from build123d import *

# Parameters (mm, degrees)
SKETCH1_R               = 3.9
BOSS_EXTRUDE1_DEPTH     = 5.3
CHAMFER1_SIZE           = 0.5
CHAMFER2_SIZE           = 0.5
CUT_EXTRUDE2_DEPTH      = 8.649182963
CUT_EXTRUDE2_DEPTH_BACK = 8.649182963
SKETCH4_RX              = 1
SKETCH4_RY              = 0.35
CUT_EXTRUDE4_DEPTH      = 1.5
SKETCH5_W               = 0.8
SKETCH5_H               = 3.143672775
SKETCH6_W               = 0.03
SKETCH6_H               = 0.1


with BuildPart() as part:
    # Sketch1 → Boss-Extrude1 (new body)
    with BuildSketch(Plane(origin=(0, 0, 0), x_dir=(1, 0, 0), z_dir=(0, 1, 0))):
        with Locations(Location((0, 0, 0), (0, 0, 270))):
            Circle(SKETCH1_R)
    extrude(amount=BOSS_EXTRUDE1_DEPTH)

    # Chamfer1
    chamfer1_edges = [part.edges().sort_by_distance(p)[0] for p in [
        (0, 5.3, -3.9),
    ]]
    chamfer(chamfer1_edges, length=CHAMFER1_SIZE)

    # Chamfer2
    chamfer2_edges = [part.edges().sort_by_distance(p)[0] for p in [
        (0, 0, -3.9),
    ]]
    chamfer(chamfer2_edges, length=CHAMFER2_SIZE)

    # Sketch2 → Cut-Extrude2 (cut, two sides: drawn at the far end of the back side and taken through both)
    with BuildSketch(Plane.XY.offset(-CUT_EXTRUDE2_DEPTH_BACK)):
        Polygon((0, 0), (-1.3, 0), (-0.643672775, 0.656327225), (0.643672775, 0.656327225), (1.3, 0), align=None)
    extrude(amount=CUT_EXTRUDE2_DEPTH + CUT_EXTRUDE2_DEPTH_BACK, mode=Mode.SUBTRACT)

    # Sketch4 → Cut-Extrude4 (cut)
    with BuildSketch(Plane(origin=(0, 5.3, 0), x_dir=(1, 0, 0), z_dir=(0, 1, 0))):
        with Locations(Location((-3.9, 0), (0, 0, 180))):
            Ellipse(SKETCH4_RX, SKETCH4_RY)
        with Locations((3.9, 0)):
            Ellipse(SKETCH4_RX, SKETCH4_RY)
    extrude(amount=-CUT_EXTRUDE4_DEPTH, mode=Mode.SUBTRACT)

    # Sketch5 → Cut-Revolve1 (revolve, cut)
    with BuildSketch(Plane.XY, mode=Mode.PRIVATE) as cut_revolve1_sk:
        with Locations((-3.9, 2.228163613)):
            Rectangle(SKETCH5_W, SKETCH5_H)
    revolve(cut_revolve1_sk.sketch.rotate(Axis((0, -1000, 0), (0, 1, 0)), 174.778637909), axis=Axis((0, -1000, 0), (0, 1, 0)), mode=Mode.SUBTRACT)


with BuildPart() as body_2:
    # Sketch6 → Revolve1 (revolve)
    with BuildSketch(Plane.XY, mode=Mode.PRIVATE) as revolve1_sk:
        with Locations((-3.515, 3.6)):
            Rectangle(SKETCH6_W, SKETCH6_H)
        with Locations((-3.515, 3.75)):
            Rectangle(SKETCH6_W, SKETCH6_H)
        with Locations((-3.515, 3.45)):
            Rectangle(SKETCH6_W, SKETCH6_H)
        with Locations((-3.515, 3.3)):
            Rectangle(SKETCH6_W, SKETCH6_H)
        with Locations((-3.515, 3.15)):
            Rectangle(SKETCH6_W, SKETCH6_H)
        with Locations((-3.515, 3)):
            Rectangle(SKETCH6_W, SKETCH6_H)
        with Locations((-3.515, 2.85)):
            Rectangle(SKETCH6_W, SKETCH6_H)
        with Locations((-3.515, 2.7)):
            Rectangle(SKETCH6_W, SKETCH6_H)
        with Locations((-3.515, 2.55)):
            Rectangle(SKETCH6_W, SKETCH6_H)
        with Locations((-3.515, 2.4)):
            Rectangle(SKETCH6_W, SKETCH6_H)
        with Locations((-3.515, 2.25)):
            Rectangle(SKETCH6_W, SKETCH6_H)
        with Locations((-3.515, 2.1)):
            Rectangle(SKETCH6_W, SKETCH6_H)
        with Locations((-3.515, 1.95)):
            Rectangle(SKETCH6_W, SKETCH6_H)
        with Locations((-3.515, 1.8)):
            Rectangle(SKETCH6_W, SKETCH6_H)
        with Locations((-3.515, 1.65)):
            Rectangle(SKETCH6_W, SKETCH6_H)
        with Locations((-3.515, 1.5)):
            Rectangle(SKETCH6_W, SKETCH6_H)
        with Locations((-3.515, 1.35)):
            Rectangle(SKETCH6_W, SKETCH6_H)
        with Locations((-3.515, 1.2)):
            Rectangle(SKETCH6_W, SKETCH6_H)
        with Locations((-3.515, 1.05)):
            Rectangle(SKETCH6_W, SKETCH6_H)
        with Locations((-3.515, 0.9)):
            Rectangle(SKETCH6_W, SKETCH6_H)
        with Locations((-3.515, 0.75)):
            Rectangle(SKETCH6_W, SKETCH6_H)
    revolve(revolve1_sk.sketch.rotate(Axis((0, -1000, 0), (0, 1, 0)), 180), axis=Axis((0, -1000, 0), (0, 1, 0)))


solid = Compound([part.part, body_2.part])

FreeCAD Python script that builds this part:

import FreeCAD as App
import Part
import Sketcher
from FreeCAD import Vector


def edges_at(feature, points):
    """Names of the edges that pass closest to the given points."""
    edges = feature.Shape.Edges
    near = lambda p: min(range(len(edges)), key=lambda i: edges[i].distToShape(Part.Vertex(*p))[0])
    return sorted({f"Edge{near(p) + 1}" for p in points})


def add_polygon(sketch, points):
    """Adds a closed chain of lines whose ends are joined by coincident constraints."""
    first, n = sketch.GeometryCount, len(points)
    for a, b in zip(points, points[1:] + points[:1]):
        sketch.addGeometry(Part.LineSegment(App.Vector(*a, 0), App.Vector(*b, 0)), False)
    for i in range(n):
        sketch.addConstraint(Sketcher.Constraint("Coincident", first + i, 2, first + (i + 1) % n, 1))

doc = App.newDocument("Part")
body = doc.addObject("PartDesign::Body", "Body")

sketch1 = body.newObject("Sketcher::SketchObject", "Sketch")
sketch1.AttachmentSupport = (doc.getObject("XZ_Plane"), [""])
sketch1.MapMode = "FlatFace"
sketch1.addGeometry(Part.Circle(Vector(0, 0, 0), Vector(0, 0, 1), 3.9), False)
sketch1.addConstraint([
    Sketcher.Constraint("Coincident", 0, 3, -1, 1),
    Sketcher.Constraint("Diameter", 0, 7.8),
])
pad1 = body.newObject("PartDesign::Pad", "Pad")
pad1.Profile = sketch1
pad1.Length = 5.3
pad1.Reversed = True
doc.recompute()

chamfer = body.newObject("PartDesign::Chamfer", "Chamfer")
chamfer.Base = (pad1, edges_at(pad1, [(0, 5.3, -3.9)]))
chamfer.Size = 0.5
doc.recompute()

chamfer2 = body.newObject("PartDesign::Chamfer", "Chamfer001")
chamfer2.Base = (chamfer, edges_at(chamfer, [(0, 0, -3.9)]))
chamfer2.Size = 0.5

sketch2 = body.newObject("Sketcher::SketchObject", "Sketch001")
sketch2.AttachmentSupport = (doc.getObject("XY_Plane"), [""])
sketch2.MapMode = "FlatFace"
add_polygon(sketch2, [(-1.3, 0), (1.3, 0), (0.6, 0.7), (-0.6, 0.7)])
sketch2.addConstraint([
    Sketcher.Constraint("Horizontal", 0),
    Sketcher.Constraint("Horizontal", 2),
    Sketcher.Constraint("Symmetric", 0, 2, 3, 2, -1, 1),
    Sketcher.Constraint("Perpendicular", 1, 3),
    Sketcher.Constraint("Equal", 1, 3),
    Sketcher.Constraint("DistanceX", 0, 1, 0, 2, 2.6),
    Sketcher.Constraint("DistanceX", 2, 2, 2, 1, 1.287346),
])
pocket1 = body.newObject("PartDesign::Pocket", "Pocket")
pocket1.Profile = sketch2
pocket1.Type = "ThroughAll"
pocket1.Midplane = True

sketch3 = body.newObject("Sketcher::SketchObject", "Sketch002")
sketch3.AttachmentSupport = (doc.getObject("XZ_Plane"), [""])
sketch3.MapMode = "FlatFace"
sketch3.AttachmentOffset = App.Placement(Vector(0, 0, -5.3), App.Rotation())
sketch3.addGeometry([
    Part.Ellipse(Vector(-4.9, 0, 0), Vector(-3.9, -0.35, 0), Vector(-3.9, 0, 0)),
    Part.Ellipse(Vector(4.9, 0, 0), Vector(3.9, 0.35, 0), Vector(3.9, 0, 0)),
], False)
sketch3.addConstraint([
    Sketcher.Constraint("Block", 0),
    Sketcher.Constraint("Block", 1),
])
pocket2 = body.newObject("PartDesign::Pocket", "Pocket001")
pocket2.Profile = sketch3
pocket2.Length = 1.5
pocket2.Reversed = True

sketch4 = body.newObject("Sketcher::SketchObject", "Sketch003")
sketch4.AttachmentSupport = (doc.getObject("XY_Plane"), [""])
sketch4.MapMode = "FlatFace"
add_polygon(sketch4, [(-4.3, 3.8), (-4.3, 0.7), (-3.5, 0.7), (-3.5, 3.8)])
sketch4.addConstraint([
    Sketcher.Constraint("Vertical", 0),
    Sketcher.Constraint("Horizontal", 1),
    Sketcher.Constraint("Vertical", 2),
    Sketcher.Constraint("Horizontal", 3),
    Sketcher.Constraint("DistanceX", 1, 1, 1, 2, 0.8),
    Sketcher.Constraint("DistanceX", 0, 2, -1, 1, 4.3),
    Sketcher.Constraint("DistanceY", -1, 1, 2, 2, 3.8),
    Sketcher.Constraint("DistanceY", 0, 2, 0, 1, 3.143673),
])
groove = body.newObject("PartDesign::Groove", "Groove")
groove.Profile = sketch4
groove.ReferenceAxis = (sketch4, ["V_Axis"])
groove.Angle = 360
body2 = doc.addObject("PartDesign::Body", "Body001")
body2.AllowCompound = True

sketch5 = body2.newObject("Sketcher::SketchObject", "Sketch004")
sketch5.AttachmentSupport = (doc.getObject("XY_Plane001"), [""])
sketch5.MapMode = "FlatFace"
add_polygon(sketch5, [(-3.53, 3.65), (-3.53, 3.55), (-3.5, 3.55), (-3.5, 3.65)])
add_polygon(sketch5, [(-3.53, 3.8), (-3.53, 3.7), (-3.5, 3.7), (-3.5, 3.8)])
add_polygon(sketch5, [(-3.53, 3.5), (-3.53, 3.4), (-3.5, 3.4), (-3.5, 3.5)])
add_polygon(sketch5, [(-3.53, 3.35), (-3.53, 3.25), (-3.5, 3.25), (-3.5, 3.35)])
add_polygon(sketch5, [(-3.53, 3.2), (-3.53, 3.1), (-3.5, 3.1), (-3.5, 3.2)])
add_polygon(sketch5, [(-3.53, 3.05), (-3.53, 2.95), (-3.5, 2.95), (-3.5, 3.05)])
add_polygon(sketch5, [(-3.53, 2.9), (-3.53, 2.8), (-3.5, 2.8), (-3.5, 2.9)])
add_polygon(sketch5, [(-3.53, 2.75), (-3.53, 2.65), (-3.5, 2.65), (-3.5, 2.75)])
add_polygon(sketch5, [(-3.53, 2.6), (-3.53, 2.5), (-3.5, 2.5), (-3.5, 2.6)])
add_polygon(sketch5, [(-3.53, 2.45), (-3.53, 2.35), (-3.5, 2.35), (-3.5, 2.45)])
add_polygon(sketch5, [(-3.53, 2.3), (-3.53, 2.2), (-3.5, 2.2), (-3.5, 2.3)])
add_polygon(sketch5, [(-3.53, 2.15), (-3.53, 2.05), (-3.5, 2.05), (-3.5, 2.15)])
add_polygon(sketch5, [(-3.53, 2), (-3.53, 1.9), (-3.5, 1.9), (-3.5, 2)])
add_polygon(sketch5, [(-3.53, 1.85), (-3.53, 1.75), (-3.5, 1.75), (-3.5, 1.85)])
add_polygon(sketch5, [(-3.53, 1.7), (-3.53, 1.6), (-3.5, 1.6), (-3.5, 1.7)])
add_polygon(sketch5, [(-3.53, 1.55), (-3.53, 1.45), (-3.5, 1.45), (-3.5, 1.55)])
add_polygon(sketch5, [(-3.53, 1.4), (-3.53, 1.3), (-3.5, 1.3), (-3.5, 1.4)])
add_polygon(sketch5, [(-3.53, 1.25), (-3.53, 1.15), (-3.5, 1.15), (-3.5, 1.25)])
add_polygon(sketch5, [(-3.53, 1.1), (-3.53, 1), (-3.5, 1), (-3.5, 1.1)])
add_polygon(sketch5, [(-3.53, 0.95), (-3.53, 0.85), (-3.5, 0.85), (-3.5, 0.95)])
add_polygon(sketch5, [(-3.53, 0.8), (-3.53, 0.7), (-3.5, 0.7), (-3.5, 0.8)])
sketch5.addConstraint([
    Sketcher.Constraint("Vertical", 0),
    Sketcher.Constraint("Horizontal", 1),
    Sketcher.Constraint("Vertical", 2),
    Sketcher.Constraint("Horizontal", 3),
    Sketcher.Constraint("Vertical", 4),
    Sketcher.Constraint("Horizontal", 5),
    Sketcher.Constraint("Vertical", 6),
    Sketcher.Constraint("Horizontal", 7),
    Sketcher.Constraint("Vertical", 8),
    Sketcher.Constraint("Horizontal", 9),
    Sketcher.Constraint("Vertical", 10),
    Sketcher.Constraint("Horizontal", 11),
    Sketcher.Constraint("Vertical", 12),
    Sketcher.Constraint("Horizontal", 13),
    Sketcher.Constraint("Vertical", 14),
    Sketcher.Constraint("Horizontal", 15),
    Sketcher.Constraint("Vertical", 16),
    Sketcher.Constraint("Horizontal", 17),
    Sketcher.Constraint("Vertical", 18),
    Sketcher.Constraint("Horizontal", 19),
    Sketcher.Constraint("Vertical", 20),
    Sketcher.Constraint("Horizontal", 21),
    Sketcher.Constraint("Vertical", 22),
    Sketcher.Constraint("Horizontal", 23),
    Sketcher.Constraint("Vertical", 24),
    Sketcher.Constraint("Horizontal", 25),
    Sketcher.Constraint("Vertical", 26),
    Sketcher.Constraint("Horizontal", 27),
    Sketcher.Constraint("Vertical", 28),
    Sketcher.Constraint("Horizontal", 29),
    Sketcher.Constraint("Vertical", 30),
    Sketcher.Constraint("Horizontal", 31),
    Sketcher.Constraint("Vertical", 32),
    Sketcher.Constraint("Horizontal", 33),
    Sketcher.Constraint("Vertical", 34),
    Sketcher.Constraint("Horizontal", 35),
    Sketcher.Constraint("Vertical", 36),
    Sketcher.Constraint("Horizontal", 37),
    Sketcher.Constraint("Vertical", 38),
    Sketcher.Constraint("Horizontal", 39),
    Sketcher.Constraint("Vertical", 40),
    Sketcher.Constraint("Horizontal", 41),
    Sketcher.Constraint("Vertical", 42),
    Sketcher.Constraint("Horizontal", 43),
    Sketcher.Constraint("Vertical", 44),
    Sketcher.Constraint("Horizontal", 45),
    Sketcher.Constraint("Vertical", 46),
    Sketcher.Constraint("Horizontal", 47),
    Sketcher.Constraint("Vertical", 48),
    Sketcher.Constraint("Horizontal", 49),
    Sketcher.Constraint("Vertical", 50),
    Sketcher.Constraint("Horizontal", 51),
    Sketcher.Constraint("Vertical", 52),
    Sketcher.Constraint("Horizontal", 53),
    Sketcher.Constraint("Vertical", 54),
    Sketcher.Constraint("Horizontal", 55),
    Sketcher.Constraint("Vertical", 56),
    Sketcher.Constraint("Horizontal", 57),
    Sketcher.Constraint("Vertical", 58),
    Sketcher.Constraint("Horizontal", 59),
    Sketcher.Constraint("Vertical", 60),
    Sketcher.Constraint("Horizontal", 61),
    Sketcher.Constraint("Vertical", 62),
    Sketcher.Constraint("Horizontal", 63),
    Sketcher.Constraint("Vertical", 64),
    Sketcher.Constraint("Horizontal", 65),
    Sketcher.Constraint("Vertical", 66),
    Sketcher.Constraint("Horizontal", 67),
    Sketcher.Constraint("Vertical", 68),
    Sketcher.Constraint("Horizontal", 69),
    Sketcher.Constraint("Vertical", 70),
    Sketcher.Constraint("Horizontal", 71),
    Sketcher.Constraint("Vertical", 72),
    Sketcher.Constraint("Horizontal", 73),
    Sketcher.Constraint("Vertical", 74),
    Sketcher.Constraint("Horizontal", 75),
    Sketcher.Constraint("Vertical", 76),
    Sketcher.Constraint("Horizontal", 77),
    Sketcher.Constraint("Vertical", 78),
    Sketcher.Constraint("Horizontal", 79),
    Sketcher.Constraint("Vertical", 80),
    Sketcher.Constraint("Horizontal", 81),
    Sketcher.Constraint("Vertical", 82),
    Sketcher.Constraint("Horizontal", 83),
    Sketcher.Constraint("Vertical", 3, 2, 4, 2),
    Sketcher.Constraint("Vertical", 2, 2, 5, 2),
    Sketcher.Constraint("Vertical", 7, 2, 8, 2),
    Sketcher.Constraint("Vertical", 6, 2, 9, 2),
    Sketcher.Constraint("Vertical", 11, 2, 12, 2),
    Sketcher.Constraint("Vertical", 10, 2, 13, 2),
    Sketcher.Constraint("Vertical", 15, 2, 16, 2),
    Sketcher.Constraint("Vertical", 14, 2, 17, 2),
    Sketcher.Constraint("Vertical", 19, 2, 20, 2),
    Sketcher.Constraint("Vertical", 18, 2, 21, 2),
    Sketcher.Constraint("Vertical", 23, 2, 24, 2),
    Sketcher.Constraint("Vertical", 22, 2, 25, 2),
    Sketcher.Constraint("Vertical", 27, 2, 28, 2),
    Sketcher.Constraint("Vertical", 26, 2, 29, 2),
    Sketcher.Constraint("Vertical", 31, 2, 32, 2),
    Sketcher.Constraint("Vertical", 30, 2, 33, 2),
    Sketcher.Constraint("Vertical", 35, 2, 36, 2),
    Sketcher.Constraint("Vertical", 34, 2, 37, 2),
    Sketcher.Constraint("Vertical", 39, 2, 40, 2),
    Sketcher.Constraint("Vertical", 38, 2, 41, 2),
    Sketcher.Constraint("Vertical", 43, 2, 44, 2),
    Sketcher.Constraint("Vertical", 42, 2, 45, 2),
    Sketcher.Constraint("Vertical", 47, 2, 48, 2),
    Sketcher.Constraint("Vertical", 46, 2, 49, 2),
    Sketcher.Constraint("Vertical", 51, 2, 52, 2),
    Sketcher.Constraint("Vertical", 50, 2, 53, 2),
    Sketcher.Constraint("Vertical", 55, 2, 56, 2),
    Sketcher.Constraint("Vertical", 54, 2, 57, 2),
    Sketcher.Constraint("Vertical", 59, 2, 60, 2),
    Sketcher.Constraint("Vertical", 58, 2, 61, 2),
    Sketcher.Constraint("Vertical", 63, 2, 64, 2),
    Sketcher.Constraint("Vertical", 62, 2, 65, 2),
    Sketcher.Constraint("Vertical", 67, 2, 68, 2),
    Sketcher.Constraint("Vertical", 66, 2, 69, 2),
    Sketcher.Constraint("Vertical", 71, 2, 72, 2),
    Sketcher.Constraint("Vertical", 70, 2, 73, 2),
    Sketcher.Constraint("Vertical", 75, 2, 76, 2),
    Sketcher.Constraint("Vertical", 74, 2, 77, 2),
    Sketcher.Constraint("Vertical", 79, 2, 80, 2),
    Sketcher.Constraint("Vertical", 78, 2, 81, 2),
    Sketcher.Constraint("Equal", 2, 4),
    Sketcher.Constraint("Equal", 6, 8),
    Sketcher.Constraint("Equal", 10, 12),
    Sketcher.Constraint("Equal", 14, 16),
    Sketcher.Constraint("Equal", 18, 20),
    Sketcher.Constraint("Equal", 22, 24),
    Sketcher.Constraint("Equal", 26, 28),
    Sketcher.Constraint("Equal", 30, 32),
    Sketcher.Constraint("Equal", 34, 36),
    Sketcher.Constraint("Equal", 38, 40),
    Sketcher.Constraint("Equal", 42, 44),
    Sketcher.Constraint("Equal", 46, 48),
    Sketcher.Constraint("Equal", 50, 52),
    Sketcher.Constraint("Equal", 54, 56),
    Sketcher.Constraint("Equal", 58, 60),
    Sketcher.Constraint("Equal", 62, 64),
    Sketcher.Constraint("Equal", 66, 68),
    Sketcher.Constraint("Equal", 70, 72),
    Sketcher.Constraint("Equal", 74, 76),
    Sketcher.Constraint("Equal", 78, 80),
    Sketcher.Constraint("DistanceY", 0, 2, 0, 1, 0.1),
    Sketcher.Constraint("DistanceY", -1, 1, 50, 2, 2.0),
    Sketcher.Constraint("DistanceY", -1, 1, 72, 2, 1.0),
    Sketcher.Constraint("DistanceX", 1, 1, 1, 2, 0.03),
    Sketcher.Constraint("DistanceX", 1, 2, -1, 1, 3.5),
    Sketcher.Constraint("DistanceY", -1, 1, 4, 2, 3.7),
    Sketcher.Constraint("DistanceY", -1, 1, 8, 2, 3.4),
    Sketcher.Constraint("DistanceY", -1, 1, 16, 2, 3.1),
    Sketcher.Constraint("DistanceY", -1, 1, 24, 2, 2.8),
    Sketcher.Constraint("DistanceY", -1, 1, 32, 2, 2.5),
    Sketcher.Constraint("DistanceY", -1, 1, 40, 2, 2.2),
    Sketcher.Constraint("DistanceY", -1, 1, 56, 2, 1.6),
    Sketcher.Constraint("DistanceY", -1, 1, 64, 2, 1.3),
    Sketcher.Constraint("DistanceY", -1, 1, 80, 2, 0.7),
    Sketcher.Constraint("DistanceY", -1, 1, 0, 2, 3.55),
    Sketcher.Constraint("DistanceY", -1, 1, 12, 2, 3.25),
    Sketcher.Constraint("DistanceY", -1, 1, 20, 2, 2.95),
    Sketcher.Constraint("DistanceY", -1, 1, 28, 2, 2.65),
    Sketcher.Constraint("DistanceY", -1, 1, 36, 2, 2.35),
    Sketcher.Constraint("DistanceY", -1, 1, 44, 2, 2.05),
    Sketcher.Constraint("DistanceY", -1, 1, 52, 2, 1.75),
    Sketcher.Constraint("DistanceY", -1, 1, 60, 2, 1.45),
    Sketcher.Constraint("DistanceY", -1, 1, 68, 2, 1.15),
    Sketcher.Constraint("DistanceY", -1, 1, 76, 2, 0.85),
])
revolution = body2.newObject("PartDesign::Revolution", "Revolution")
revolution.Profile = sketch5
revolution.ReferenceAxis = (sketch5, ["V_Axis"])
revolution.Angle = 360

doc.recompute()
